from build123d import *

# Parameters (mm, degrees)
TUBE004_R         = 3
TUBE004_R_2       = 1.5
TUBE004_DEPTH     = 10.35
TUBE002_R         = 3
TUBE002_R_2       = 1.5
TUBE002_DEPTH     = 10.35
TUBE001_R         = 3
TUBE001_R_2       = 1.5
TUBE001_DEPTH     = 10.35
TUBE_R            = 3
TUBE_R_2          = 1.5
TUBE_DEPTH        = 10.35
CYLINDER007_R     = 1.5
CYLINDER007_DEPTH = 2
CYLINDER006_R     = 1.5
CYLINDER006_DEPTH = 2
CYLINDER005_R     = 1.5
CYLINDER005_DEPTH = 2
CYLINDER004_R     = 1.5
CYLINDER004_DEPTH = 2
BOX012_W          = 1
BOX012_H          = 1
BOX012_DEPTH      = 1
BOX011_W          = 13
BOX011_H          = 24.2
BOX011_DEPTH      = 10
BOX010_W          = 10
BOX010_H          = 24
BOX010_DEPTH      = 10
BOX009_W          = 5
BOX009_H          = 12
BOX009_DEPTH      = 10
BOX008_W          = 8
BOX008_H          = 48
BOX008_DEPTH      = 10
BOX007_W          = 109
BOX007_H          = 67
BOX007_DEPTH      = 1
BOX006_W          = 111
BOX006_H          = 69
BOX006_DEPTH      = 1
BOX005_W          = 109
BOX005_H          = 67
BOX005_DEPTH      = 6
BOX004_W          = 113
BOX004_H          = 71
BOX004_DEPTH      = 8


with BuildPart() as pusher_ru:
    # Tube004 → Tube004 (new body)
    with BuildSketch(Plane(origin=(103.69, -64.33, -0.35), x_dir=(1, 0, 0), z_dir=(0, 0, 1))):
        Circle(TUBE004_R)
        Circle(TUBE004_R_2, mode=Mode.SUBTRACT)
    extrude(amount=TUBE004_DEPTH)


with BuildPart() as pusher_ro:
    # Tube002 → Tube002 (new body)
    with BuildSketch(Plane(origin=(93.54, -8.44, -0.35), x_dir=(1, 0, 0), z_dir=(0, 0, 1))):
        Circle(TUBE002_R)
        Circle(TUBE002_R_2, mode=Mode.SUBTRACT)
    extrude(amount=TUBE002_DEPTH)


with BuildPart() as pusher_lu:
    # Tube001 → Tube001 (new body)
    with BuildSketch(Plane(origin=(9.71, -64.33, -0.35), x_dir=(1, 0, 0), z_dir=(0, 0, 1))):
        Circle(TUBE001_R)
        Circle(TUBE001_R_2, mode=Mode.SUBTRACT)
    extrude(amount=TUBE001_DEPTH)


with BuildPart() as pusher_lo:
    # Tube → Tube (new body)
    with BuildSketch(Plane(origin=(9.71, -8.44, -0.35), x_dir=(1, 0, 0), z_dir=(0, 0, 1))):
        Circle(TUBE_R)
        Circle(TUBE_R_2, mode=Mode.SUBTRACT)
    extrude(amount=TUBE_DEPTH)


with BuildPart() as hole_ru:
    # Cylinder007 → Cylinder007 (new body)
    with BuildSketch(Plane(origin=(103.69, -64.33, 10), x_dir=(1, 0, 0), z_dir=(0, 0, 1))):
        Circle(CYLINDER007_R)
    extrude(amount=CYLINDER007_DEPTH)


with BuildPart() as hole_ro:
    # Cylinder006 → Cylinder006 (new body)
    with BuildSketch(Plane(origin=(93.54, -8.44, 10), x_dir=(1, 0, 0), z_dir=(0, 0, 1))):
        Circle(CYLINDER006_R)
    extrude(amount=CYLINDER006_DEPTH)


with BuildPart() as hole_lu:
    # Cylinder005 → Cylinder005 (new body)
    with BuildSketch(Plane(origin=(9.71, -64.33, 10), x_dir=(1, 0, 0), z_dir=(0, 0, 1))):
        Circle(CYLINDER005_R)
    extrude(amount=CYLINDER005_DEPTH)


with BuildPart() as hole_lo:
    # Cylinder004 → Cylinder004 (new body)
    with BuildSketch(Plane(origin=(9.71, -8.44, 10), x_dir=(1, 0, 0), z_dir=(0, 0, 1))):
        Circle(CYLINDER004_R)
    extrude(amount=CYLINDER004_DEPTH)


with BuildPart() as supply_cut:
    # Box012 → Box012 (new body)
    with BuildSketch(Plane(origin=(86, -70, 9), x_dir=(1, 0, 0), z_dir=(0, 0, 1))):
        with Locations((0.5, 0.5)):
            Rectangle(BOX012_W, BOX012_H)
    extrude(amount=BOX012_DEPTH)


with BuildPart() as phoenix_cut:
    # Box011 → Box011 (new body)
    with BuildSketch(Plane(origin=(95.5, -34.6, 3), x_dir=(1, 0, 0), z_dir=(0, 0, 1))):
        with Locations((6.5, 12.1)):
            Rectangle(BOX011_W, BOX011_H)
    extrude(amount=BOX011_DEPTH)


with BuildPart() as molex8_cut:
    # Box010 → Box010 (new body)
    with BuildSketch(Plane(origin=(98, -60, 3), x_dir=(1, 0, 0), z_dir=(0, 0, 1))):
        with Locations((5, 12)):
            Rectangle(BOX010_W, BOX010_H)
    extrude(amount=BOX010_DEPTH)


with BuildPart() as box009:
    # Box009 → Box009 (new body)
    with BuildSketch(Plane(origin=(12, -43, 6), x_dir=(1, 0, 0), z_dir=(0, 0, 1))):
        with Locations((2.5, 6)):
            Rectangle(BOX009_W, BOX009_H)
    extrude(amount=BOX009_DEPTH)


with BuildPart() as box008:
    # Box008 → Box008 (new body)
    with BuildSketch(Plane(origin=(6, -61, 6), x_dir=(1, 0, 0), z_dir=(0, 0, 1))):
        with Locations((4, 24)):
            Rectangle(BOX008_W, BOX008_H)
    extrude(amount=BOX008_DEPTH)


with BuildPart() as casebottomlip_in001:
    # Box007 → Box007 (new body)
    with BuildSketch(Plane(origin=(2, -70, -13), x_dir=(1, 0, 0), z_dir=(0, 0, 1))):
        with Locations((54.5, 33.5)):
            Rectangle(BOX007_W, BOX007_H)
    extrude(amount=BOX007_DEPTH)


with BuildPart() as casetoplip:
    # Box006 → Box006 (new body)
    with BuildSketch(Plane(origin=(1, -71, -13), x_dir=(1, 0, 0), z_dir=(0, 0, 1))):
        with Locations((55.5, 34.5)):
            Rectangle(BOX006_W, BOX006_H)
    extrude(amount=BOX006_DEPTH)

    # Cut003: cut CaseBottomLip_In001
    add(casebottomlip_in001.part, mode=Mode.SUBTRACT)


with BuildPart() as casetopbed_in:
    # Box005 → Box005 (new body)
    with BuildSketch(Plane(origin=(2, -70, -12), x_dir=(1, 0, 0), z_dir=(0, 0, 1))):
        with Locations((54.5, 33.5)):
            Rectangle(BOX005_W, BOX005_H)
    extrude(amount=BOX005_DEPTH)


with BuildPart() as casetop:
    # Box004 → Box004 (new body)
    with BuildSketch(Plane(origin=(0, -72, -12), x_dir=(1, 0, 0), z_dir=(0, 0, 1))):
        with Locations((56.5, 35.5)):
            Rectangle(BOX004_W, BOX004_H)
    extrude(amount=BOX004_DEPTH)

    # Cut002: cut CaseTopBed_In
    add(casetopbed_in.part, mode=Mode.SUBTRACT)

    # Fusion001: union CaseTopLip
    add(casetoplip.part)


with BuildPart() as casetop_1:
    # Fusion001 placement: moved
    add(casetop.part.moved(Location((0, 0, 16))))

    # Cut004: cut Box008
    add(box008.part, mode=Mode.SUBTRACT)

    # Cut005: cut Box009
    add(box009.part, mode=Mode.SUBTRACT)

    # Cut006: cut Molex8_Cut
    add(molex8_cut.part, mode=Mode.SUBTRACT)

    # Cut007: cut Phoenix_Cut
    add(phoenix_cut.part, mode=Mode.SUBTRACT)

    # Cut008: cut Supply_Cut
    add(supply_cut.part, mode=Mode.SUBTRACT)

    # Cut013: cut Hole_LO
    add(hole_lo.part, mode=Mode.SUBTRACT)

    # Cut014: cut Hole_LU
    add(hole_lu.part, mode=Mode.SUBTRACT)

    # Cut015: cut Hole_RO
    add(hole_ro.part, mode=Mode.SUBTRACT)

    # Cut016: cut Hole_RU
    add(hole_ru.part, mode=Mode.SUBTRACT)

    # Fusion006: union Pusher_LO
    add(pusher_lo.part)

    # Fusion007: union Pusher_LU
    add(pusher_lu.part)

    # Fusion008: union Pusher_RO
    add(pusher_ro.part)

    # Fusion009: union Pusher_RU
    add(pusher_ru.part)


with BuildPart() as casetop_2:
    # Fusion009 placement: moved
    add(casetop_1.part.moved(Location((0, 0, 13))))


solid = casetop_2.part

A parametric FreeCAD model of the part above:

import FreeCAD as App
import Part
import Sketcher

V = App.Vector
Q = App.Units.Quantity

doc = App.newDocument("Part")
body = doc.addObject("PartDesign::Body", "Body")

# Sketch on XY plane
sketch1 = body.newObject("Sketcher::SketchObject", "Sketch")
sketch1.AttachmentSupport = (doc.getObject("XY_Plane"), [""])
sketch1.MapMode = "FlatFace"
sketch1.AttachmentOffset = App.Placement(V(0, 0, -0.35), App.Rotation())
sketch1.addGeometry([
    Part.Circle(V(103.7, -64.3, 0), V(0, 0, 1), 3),
    Part.Circle(V(103.7, -64.3, 0), V(0, 0, 1), 1.5),
], False)
sketch1.addConstraint([
    Sketcher.Constraint("Coincident", 1, 3, 0, 3),
    Sketcher.Constraint("Diameter", 0, Q("6 mm")),
    Sketcher.Constraint("Diameter", 1, Q("3 mm")),
    Sketcher.Constraint("DistanceX", -1, 1, 0, 3, Q("103.69 mm")),
    Sketcher.Constraint("DistanceY", 0, 3, -1, 1, Q("64.33 mm")),
])
pad1 = body.newObject("PartDesign::Pad", "Pad")
pad1.Profile = sketch1
pad1.Length = 10.35
body2 = doc.addObject("PartDesign::Body", "Body001")

# Sketch on XY plane
sketch2 = body2.newObject("Sketcher::SketchObject", "Sketch001")
sketch2.AttachmentSupport = (doc.getObject("XY_Plane001"), [""])
sketch2.MapMode = "FlatFace"
sketch2.AttachmentOffset = App.Placement(V(0, 0, -0.35), App.Rotation())
sketch2.addGeometry([
    Part.Circle(V(93.5, -8.4, 0), V(0, 0, 1), 3),
    Part.Circle(V(93.5, -8.4, 0), V(0, 0, 1), 1.5),
], False)
sketch2.addConstraint([
    Sketcher.Constraint("Coincident", 1, 3, 0, 3),
    Sketcher.Constraint("Diameter", 0, Q("6 mm")),
    Sketcher.Constraint("Diameter", 1, Q("3 mm")),
    Sketcher.Constraint("DistanceX", -1, 1, 0, 3, Q("93.54 mm")),
    Sketcher.Constraint("DistanceY", 0, 3, -1, 1, Q("8.44 mm")),
])
pad2 = body2.newObject("PartDesign::Pad", "Pad001")
pad2.Profile = sketch2
pad2.Length = 10.35
body3 = doc.addObject("PartDesign::Body", "Body002")

# Sketch on XY plane
sketch3 = body3.newObject("Sketcher::SketchObject", "Sketch002")
sketch3.AttachmentSupport = (doc.getObject("XY_Plane002"), [""])
sketch3.MapMode = "FlatFace"
sketch3.AttachmentOffset = App.Placement(V(0, 0, -0.35), App.Rotation())
sketch3.addGeometry([
    Part.Circle(V(9.7, -64.3, 0), V(0, 0, 1), 3),
    Part.Circle(V(9.7, -64.3, 0), V(0, 0, 1), 1.5),
], False)
sketch3.addConstraint([
    Sketcher.Constraint("Coincident", 1, 3, 0, 3),
    Sketcher.Constraint("Diameter", 0, Q("6 mm")),
    Sketcher.Constraint("Diameter", 1, Q("3 mm")),
    Sketcher.Constraint("DistanceX", -1, 1, 0, 3, Q("9.71 mm")),
    Sketcher.Constraint("DistanceY", 0, 3, -1, 1, Q("64.33 mm")),
])
pad3 = body3.newObject("PartDesign::Pad", "Pad002")
pad3.Profile = sketch3
pad3.Length = 10.35
body4 = doc.addObject("PartDesign::Body", "Body003")

# Sketch on XY plane
sketch4 = body4.newObject("Sketcher::SketchObject", "Sketch003")
sketch4.AttachmentSupport = (doc.getObject("XY_Plane003"), [""])
sketch4.MapMode = "FlatFace"
sketch4.AttachmentOffset = App.Placement(V(0, 0, -0.35), App.Rotation())
sketch4.addGeometry([
    Part.Circle(V(9.7, -8.4, 0), V(0, 0, 1), 3),
    Part.Circle(V(9.7, -8.4, 0), V(0, 0, 1), 1.5),
], False)
sketch4.addConstraint([
    Sketcher.Constraint("Coincident", 1, 3, 0, 3),
    Sketcher.Constraint("Diameter", 0, Q("6 mm")),
    Sketcher.Constraint("Diameter", 1, Q("3 mm")),
    Sketcher.Constraint("DistanceX", -1, 1, 0, 3, Q("9.71 mm")),
    Sketcher.Constraint("DistanceY", 0, 3, -1, 1, Q("8.44 mm")),
])
pad4 = body4.newObject("PartDesign::Pad", "Pad003")
pad4.Profile = sketch4
pad4.Length = 10.35
body5 = doc.addObject("PartDesign::Body", "Body004")

# Sketch on XY plane
sketch5 = body5.newObject("Sketcher::SketchObject", "Sketch004")
sketch5.AttachmentSupport = (doc.getObject("XY_Plane004"), [""])
sketch5.MapMode = "FlatFace"
sketch5.AttachmentOffset = App.Placement(V(0, 0, 10), App.Rotation())
sketch5.addGeometry(Part.Circle(V(103.7, -64.3, 0), V(0, 0, 1), 1.5), False)
sketch5.addConstraint([
    Sketcher.Constraint("Diameter", 0, Q("3 mm")),
    Sketcher.Constraint("DistanceX", -1, 1, 0, 3, Q("103.69 mm")),
    Sketcher.Constraint("DistanceY", 0, 3, -1, 1, Q("64.33 mm")),
])
pad5 = body5.newObject("PartDesign::Pad", "Pad004")
pad5.Profile = sketch5
pad5.Length = 2
body6 = doc.addObject("PartDesign::Body", "Body005")

# Sketch on XY plane
sketch6 = body6.newObject("Sketcher::SketchObject", "Sketch005")
sketch6.AttachmentSupport = (doc.getObject("XY_Plane005"), [""])
sketch6.MapMode = "FlatFace"
sketch6.AttachmentOffset = App.Placement(V(0, 0, 10), App.Rotation())
sketch6.addGeometry(Part.Circle(V(93.5, -8.4, 0), V(0, 0, 1), 1.5), False)
sketch6.addConstraint([
    Sketcher.Constraint("Diameter", 0, Q("3 mm")),
    Sketcher.Constraint("DistanceX", -1, 1, 0, 3, Q("93.54 mm")),
    Sketcher.Constraint("DistanceY", 0, 3, -1, 1, Q("8.44 mm")),
])
pad6 = body6.newObject("PartDesign::Pad", "Pad005")
pad6.Profile = sketch6
pad6.Length = 2
body7 = doc.addObject("PartDesign::Body", "Body006")

# Sketch on XY plane
sketch7 = body7.newObject("Sketcher::SketchObject", "Sketch006")
sketch7.AttachmentSupport = (doc.getObject("XY_Plane006"), [""])
sketch7.MapMode = "FlatFace"
sketch7.AttachmentOffset = App.Placement(V(0, 0, 10), App.Rotation())
sketch7.addGeometry(Part.Circle(V(9.7, -64.3, 0), V(0, 0, 1), 1.5), False)
sketch7.addConstraint([
    Sketcher.Constraint("Diameter", 0, Q("3 mm")),
    Sketcher.Constraint("DistanceX", -1, 1, 0, 3, Q("9.71 mm")),
    Sketcher.Constraint("DistanceY", 0, 3, -1, 1, Q("64.33 mm")),
])
pad7 = body7.newObject("PartDesign::Pad", "Pad006")
pad7.Profile = sketch7
pad7.Length = 2
body8 = doc.addObject("PartDesign::Body", "Body007")

# Sketch on XY plane
sketch8 = body8.newObject("Sketcher::SketchObject", "Sketch007")
sketch8.AttachmentSupport = (doc.getObject("XY_Plane007"), [""])
sketch8.MapMode = "FlatFace"
sketch8.AttachmentOffset = App.Placement(V(0, 0, 10), App.Rotation())
sketch8.addGeometry(Part.Circle(V(9.7, -8.4, 0), V(0, 0, 1), 1.5), False)
sketch8.addConstraint([
    Sketcher.Constraint("Diameter", 0, Q("3 mm")),
    Sketcher.Constraint("DistanceX", -1, 1, 0, 3, Q("9.71 mm")),
    Sketcher.Constraint("DistanceY", 0, 3, -1, 1, Q("8.44 mm")),
])
pad8 = body8.newObject("PartDesign::Pad", "Pad007")
pad8.Profile = sketch8
pad8.Length = 2
body9 = doc.addObject("PartDesign::Body", "Body008")

# Sketch on XY plane
sketch9 = body9.newObject("Sketcher::SketchObject", "Sketch008")
sketch9.AttachmentSupport = (doc.getObject("XY_Plane008"), [""])
sketch9.MapMode = "FlatFace"
sketch9.AttachmentOffset = App.Placement(V(0, 0, 9), App.Rotation())
sketch9.addGeometry([
    Part.LineSegment(V(86, -69, 0), V(86, -70, 0)),
    Part.LineSegment(V(86, -70, 0), V(87, -70, 0)),
    Part.LineSegment(V(87, -70, 0), V(87, -69, 0)),
    Part.LineSegment(V(87, -69, 0), V(86, -69, 0)),
], False)
sketch9.addConstraint([
    Sketcher.Constraint("Coincident", 0, 2, 1, 1),
    Sketcher.Constraint("Coincident", 1, 2, 2, 1),
    Sketcher.Constraint("Coincident", 2, 2, 3, 1),
    Sketcher.Constraint("Coincident", 3, 2, 0, 1),
    Sketcher.Constraint("Vertical", 0),
    Sketcher.Constraint("Horizontal", 1),
    Sketcher.Constraint("Vertical", 2),
    Sketcher.Constraint("Horizontal", 3),
    Sketcher.Constraint("Equal", 3, 0),
    Sketcher.Constraint("DistanceX", 1, 1, 1, 2, Q("1 mm")),
    Sketcher.Constraint("DistanceX", -1, 1, 0, 2, Q("86 mm")),
    Sketcher.Constraint("DistanceY", 0, 2, -1, 1, Q("70 mm")),
])
pad9 = body9.newObject("PartDesign::Pad", "Pad008")
pad9.Profile = sketch9
pad9.Length = 1
body10 = doc.addObject("PartDesign::Body", "Body009")

# Sketch on XY plane
sketch10 = body10.newObject("Sketcher::SketchObject", "Sketch009")
sketch10.AttachmentSupport = (doc.getObject("XY_Plane009"), [""])
sketch10.MapMode = "FlatFace"
sketch10.AttachmentOffset = App.Placement(V(0, 0, 3), App.Rotation())
sketch10.addGeometry([
    Part.LineSegment(V(96, -10, 0), V(96, -35, 0)),
    Part.LineSegment(V(96, -35, 0), V(108, -35, 0)),
    Part.LineSegment(V(108, -35, 0), V(108, -10, 0)),
    Part.LineSegment(V(108, -10, 0), V(96, -10, 0)),
], False)
sketch10.addConstraint([
    Sketcher.Constraint("Coincident", 0, 2, 1, 1),
    Sketcher.Constraint("Coincident", 1, 2, 2, 1),
    Sketcher.Constraint("Coincident", 2, 2, 3, 1),
    Sketcher.Constraint("Coincident", 3, 2, 0, 1),
    Sketcher.Constraint("Vertical", 0),
    Sketcher.Constraint("Horizontal", 1),
    Sketcher.Constraint("Vertical", 2),
    Sketcher.Constraint("Horizontal", 3),
    Sketcher.Constraint("DistanceX", 1, 1, 1, 2, Q("13 mm")),
    Sketcher.Constraint("DistanceY", 0, 2, 0, 1, Q("24.2 mm")),
    Sketcher.Constraint("DistanceX", -1, 1, 0, 2, Q("95.5 mm")),
    Sketcher.Constraint("DistanceY", 0, 2, -1, 1, Q("34.6 mm")),
])
pad10 = body10.newObject("PartDesign::Pad", "Pad009")
pad10.Profile = sketch10
pad10.Length = 10
body11 = doc.addObject("PartDesign::Body", "Body010")

# Sketch on XY plane
sketch11 = body11.newObject("Sketcher::SketchObject", "Sketch010")
sketch11.AttachmentSupport = (doc.getObject("XY_Plane010"), [""])
sketch11.MapMode = "FlatFace"
sketch11.AttachmentOffset = App.Placement(V(0, 0, 3), App.Rotation())
sketch11.addGeometry([
    Part.LineSegment(V(98, -36, 0), V(98, -60, 0)),
    Part.LineSegment(V(98, -60, 0), V(108, -60, 0)),
    Part.LineSegment(V(108, -60, 0), V(108, -36, 0)),
    Part.LineSegment(V(108, -36, 0), V(98, -36, 0)),
], False)
sketch11.addConstraint([
    Sketcher.Constraint("Coincident", 0, 2, 1, 1),
    Sketcher.Constraint("Coincident", 1, 2, 2, 1),
    Sketcher.Constraint("Coincident", 2, 2, 3, 1),
    Sketcher.Constraint("Coincident", 3, 2, 0, 1),
    Sketcher.Constraint("Vertical", 0),
    Sketcher.Constraint("Horizontal", 1),
    Sketcher.Constraint("Vertical", 2),
    Sketcher.Constraint("Horizontal", 3),
    Sketcher.Constraint("DistanceX", 1, 1, 1, 2, Q("10 mm")),
    Sketcher.Constraint("DistanceY", 0, 2, 0, 1, Q("24 mm")),
    Sketcher.Constraint("DistanceX", -1, 1, 0, 2, Q("98 mm")),
    Sketcher.Constraint("DistanceY", 0, 2, -1, 1, Q("60 mm")),
])
pad11 = body11.newObject("PartDesign::Pad", "Pad010")
pad11.Profile = sketch11
pad11.Length = 10
body12 = doc.addObject("PartDesign::Body", "Body011")

# Sketch on XY plane
sketch12 = body12.newObject("Sketcher::SketchObject", "Sketch011")
sketch12.AttachmentSupport = (doc.getObject("XY_Plane011"), [""])
sketch12.MapMode = "FlatFace"
sketch12.AttachmentOffset = App.Placement(V(0, 0, 6), App.Rotation())
sketch12.addGeometry([
    Part.LineSegment(V(12, -31, 0), V(12, -43, 0)),
    Part.LineSegment(V(12, -43, 0), V(17, -43, 0)),
    Part.LineSegment(V(17, -43, 0), V(17, -31, 0)),
    Part.LineSegment(V(17, -31, 0), V(12, -31, 0)),
], False)
sketch12.addConstraint([
    Sketcher.Constraint("Coincident", 0, 2, 1, 1),
    Sketcher.Constraint("Coincident", 1, 2, 2, 1),
    Sketcher.Constraint("Coincident", 2, 2, 3, 1),
    Sketcher.Constraint("Coincident", 3, 2, 0, 1),
    Sketcher.Constraint("Vertical", 0),
    Sketcher.Constraint("Horizontal", 1),
    Sketcher.Constraint("Vertical", 2),
    Sketcher.Constraint("Horizontal", 3),
    Sketcher.Constraint("DistanceX", 1, 1, 1, 2, Q("5 mm")),
    Sketcher.Constraint("DistanceY", 0, 2, 0, 1, Q("12 mm")),
    Sketcher.Constraint("DistanceX", -1, 1, 0, 2, Q("12 mm")),
    Sketcher.Constraint("DistanceY", 0, 2, -1, 1, Q("43 mm")),
])
pad12 = body12.newObject("PartDesign::Pad", "Pad011")
pad12.Profile = sketch12
pad12.Length = 10
body13 = doc.addObject("PartDesign::Body", "Body012")

# Sketch on XY plane
sketch13 = body13.newObject("Sketcher::SketchObject", "Sketch012")
sketch13.AttachmentSupport = (doc.getObject("XY_Plane012"), [""])
sketch13.MapMode = "FlatFace"
sketch13.AttachmentOffset = App.Placement(V(0, 0, 6), App.Rotation())
sketch13.addGeometry([
    Part.LineSegment(V(6, -13, 0), V(6, -61, 0)),
    Part.LineSegment(V(6, -61, 0), V(14, -61, 0)),
    Part.LineSegment(V(14, -61, 0), V(14, -13, 0)),
    Part.LineSegment(V(14, -13, 0), V(6, -13, 0)),
], False)
sketch13.addConstraint([
    Sketcher.Constraint("Coincident", 0, 2, 1, 1),
    Sketcher.Constraint("Coincident", 1, 2, 2, 1),
    Sketcher.Constraint("Coincident", 2, 2, 3, 1),
    Sketcher.Constraint("Coincident", 3, 2, 0, 1),
    Sketcher.Constraint("Vertical", 0),
    Sketcher.Constraint("Horizontal", 1),
    Sketcher.Constraint("Vertical", 2),
    Sketcher.Constraint("Horizontal", 3),
    Sketcher.Constraint("DistanceX", 1, 1, 1, 2, Q("8 mm")),
    Sketcher.Constraint("DistanceY", 0, 2, 0, 1, Q("48 mm")),
    Sketcher.Constraint("DistanceX", -1, 1, 0, 2, Q("6 mm")),
    Sketcher.Constraint("DistanceY", 0, 2, -1, 1, Q("61 mm")),
])
pad13 = body13.newObject("PartDesign::Pad", "Pad012")
pad13.Profile = sketch13
pad13.Length = 10
body14 = doc.addObject("PartDesign::Body", "Body013")

# Sketch on XY plane
sketch14 = body14.newObject("Sketcher::SketchObject", "Sketch013")
sketch14.AttachmentSupport = (doc.getObject("XY_Plane013"), [""])
sketch14.MapMode = "FlatFace"
sketch14.AttachmentOffset = App.Placement(V(0, 0, -13), App.Rotation())
sketch14.addGeometry([
    Part.LineSegment(V(2, -3, 0), V(2, -70, 0)),
    Part.LineSegment(V(2, -70, 0), V(111, -70, 0)),
    Part.LineSegment(V(111, -70, 0), V(111, -3, 0)),
    Part.LineSegment(V(111, -3, 0), V(2, -3, 0)),
], False)
sketch14.addConstraint([
    Sketcher.Constraint("Coincident", 0, 2, 1, 1),
    Sketcher.Constraint("Coincident", 1, 2, 2, 1),
    Sketcher.Constraint("Coincident", 2, 2, 3, 1),
    Sketcher.Constraint("Coincident", 3, 2, 0, 1),
    Sketcher.Constraint("Vertical", 0),
    Sketcher.Constraint("Horizontal", 1),
    Sketcher.Constraint("Vertical", 2),
    Sketcher.Constraint("Horizontal", 3),
    Sketcher.Constraint("DistanceX", 1, 1, 1, 2, Q("109 mm")),
    Sketcher.Constraint("DistanceY", 0, 2, 0, 1, Q("67 mm")),
    Sketcher.Constraint("DistanceX", -1, 1, 0, 2, Q("2 mm")),
    Sketcher.Constraint("DistanceY", 0, 2, -1, 1, Q("70 mm")),
])
pad14 = body14.newObject("PartDesign::Pad", "Pad013")
pad14.Profile = sketch14
pad14.Length = 1
body15 = doc.addObject("PartDesign::Body", "Body014")

# Sketch on XY plane
sketch15 = body15.newObject("Sketcher::SketchObject", "Sketch014")
sketch15.AttachmentSupport = (doc.getObject("XY_Plane014"), [""])
sketch15.MapMode = "FlatFace"
sketch15.AttachmentOffset = App.Placement(V(0, 0, -13), App.Rotation())
sketch15.addGeometry([
    Part.LineSegment(V(1, -2, 0), V(1, -71, 0)),
    Part.LineSegment(V(1, -71, 0), V(112, -71, 0)),
    Part.LineSegment(V(112, -71, 0), V(112, -2, 0)),
    Part.LineSegment(V(112, -2, 0), V(1, -2, 0)),
], False)
sketch15.addConstraint([
    Sketcher.Constraint("Coincident", 0, 2, 1, 1),
    Sketcher.Constraint("Coincident", 1, 2, 2, 1),
    Sketcher.Constraint("Coincident", 2, 2, 3, 1),
    Sketcher.Constraint("Coincident", 3, 2, 0, 1),
    Sketcher.Constraint("Vertical", 0),
    Sketcher.Constraint("Horizontal", 1),
    Sketcher.Constraint("Vertical", 2),
    Sketcher.Constraint("Horizontal", 3),
    Sketcher.Constraint("DistanceX", 1, 1, 1, 2, Q("111 mm")),
    Sketcher.Constraint("DistanceY", 0, 2, 0, 1, Q("69 mm")),
    Sketcher.Constraint("DistanceX", -1, 1, 0, 2, Q("1 mm")),
    Sketcher.Constraint("DistanceY", 0, 2, -1, 1, Q("71 mm")),
])
pad15 = body15.newObject("PartDesign::Pad", "Pad014")
pad15.Profile = sketch15
pad15.Length = 1
doc.recompute()

boolean = body15.newObject("PartDesign::Boolean", "Boolean")
boolean.Type = "Cut"
boolean.addObjects([body14])
body16 = doc.addObject("PartDesign::Body", "Body015")

# Sketch on XY plane
sketch16 = body16.newObject("Sketcher::SketchObject", "Sketch015")
sketch16.AttachmentSupport = (doc.getObject("XY_Plane015"), [""])
sketch16.MapMode = "FlatFace"
sketch16.AttachmentOffset = App.Placement(V(0, 0, -12), App.Rotation())
sketch16.addGeometry([
    Part.LineSegment(V(2, -3, 0), V(2, -70, 0)),
    Part.LineSegment(V(2, -70, 0), V(111, -70, 0)),
    Part.LineSegment(V(111, -70, 0), V(111, -3, 0)),
    Part.LineSegment(V(111, -3, 0), V(2, -3, 0)),
], False)
sketch16.addConstraint([
    Sketcher.Constraint("Coincident", 0, 2, 1, 1),
    Sketcher.Constraint("Coincident", 1, 2, 2, 1),
    Sketcher.Constraint("Coincident", 2, 2, 3, 1),
    Sketcher.Constraint("Coincident", 3, 2, 0, 1),
    Sketcher.Constraint("Vertical", 0),
    Sketcher.Constraint("Horizontal", 1),
    Sketcher.Constraint("Vertical", 2),
    Sketcher.Constraint("Horizontal", 3),
    Sketcher.Constraint("DistanceX", 1, 1, 1, 2, Q("109 mm")),
    Sketcher.Constraint("DistanceY", 0, 2, 0, 1, Q("67 mm")),
    Sketcher.Constraint("DistanceX", -1, 1, 0, 2, Q("2 mm")),
    Sketcher.Constraint("DistanceY", 0, 2, -1, 1, Q("70 mm")),
])
pad16 = body16.newObject("PartDesign::Pad", "Pad015")
pad16.Profile = sketch16
pad16.Length = 6
body17 = doc.addObject("PartDesign::Body", "Body016")

# Sketch on XY plane
sketch17 = body17.newObject("Sketcher::SketchObject", "Sketch016")
sketch17.AttachmentSupport = (doc.getObject("XY_Plane016"), [""])
sketch17.MapMode = "FlatFace"
sketch17.AttachmentOffset = App.Placement(V(0, 0, -12), App.Rotation())
sketch17.addGeometry([
    Part.LineSegment(V(0, -1, 0), V(0, -72, 0)),
    Part.LineSegment(V(0, -72, 0), V(113, -72, 0)),
    Part.LineSegment(V(113, -72, 0), V(113, -1, 0)),
    Part.LineSegment(V(113, -1, 0), V(0, -1, 0)),
], False)
sketch17.addConstraint([
    Sketcher.Constraint("Coincident", 0, 2, 1, 1),
    Sketcher.Constraint("Coincident", 1, 2, 2, 1),
    Sketcher.Constraint("Coincident", 2, 2, 3, 1),
    Sketcher.Constraint("Coincident", 3, 2, 0, 1),
    Sketcher.Constraint("Vertical", 0),
    Sketcher.Constraint("Horizontal", 1),
    Sketcher.Constraint("Vertical", 2),
    Sketcher.Constraint("Horizontal", 3),
    Sketcher.Constraint("PointOnObject", 0, 2, -2),
    Sketcher.Constraint("DistanceX", 1, 1, 1, 2, Q("113 mm")),
    Sketcher.Constraint("DistanceY", 0, 2, 0, 1, Q("71 mm")),
    Sketcher.Constraint("DistanceY", 0, 2, -1, 1, Q("72 mm")),
])
pad17 = body17.newObject("PartDesign::Pad", "Pad016")
pad17.Profile = sketch17
pad17.Length = 8
doc.recompute()

boolean2 = body17.newObject("PartDesign::Boolean", "Boolean001")
boolean2.Type = "Cut"
boolean2.addObjects([body16])
doc.recompute()

boolean3 = body17.newObject("PartDesign::Boolean", "Boolean002")
boolean3.Type = "Fuse"
boolean3.addObjects([body15])
body18 = doc.addObject("PartDesign::Body", "Body017")
doc.recompute()

body17.Placement = App.Placement(V(0, 0, 16), App.Rotation(V(0, 0, 1), 0))
boolean4 = body18.newObject("PartDesign::Boolean", "Boolean003")
boolean4.Type = "Fuse"
boolean4.addObjects([body17])
doc.recompute()

boolean5 = body18.newObject("PartDesign::Boolean", "Boolean004")
boolean5.Type = "Cut"
boolean5.addObjects([body13])
doc.recompute()

boolean6 = body18.newObject("PartDesign::Boolean", "Boolean005")
boolean6.Type = "Cut"
boolean6.addObjects([body12])
doc.recompute()

boolean7 = body18.newObject("PartDesign::Boolean", "Boolean006")
boolean7.Type = "Cut"
boolean7.addObjects([body11])
doc.recompute()

boolean8 = body18.newObject("PartDesign::Boolean", "Boolean007")
boolean8.Type = "Cut"
boolean8.addObjects([body10])
doc.recompute()

boolean9 = body18.newObject("PartDesign::Boolean", "Boolean008")
boolean9.Type = "Cut"
boolean9.addObjects([body9])
doc.recompute()

boolean10 = body18.newObject("PartDesign::Boolean", "Boolean009")
boolean10.Type = "Cut"
boolean10.addObjects([body8])
doc.recompute()

boolean11 = body18.newObject("PartDesign::Boolean", "Boolean010")
boolean11.Type = "Cut"
boolean11.addObjects([body7])
doc.recompute()

boolean12 = body18.newObject("PartDesign::Boolean", "Boolean011")
boolean12.Type = "Cut"
boolean12.addObjects([body6])
doc.recompute()

boolean13 = body18.newObject("PartDesign::Boolean", "Boolean012")
boolean13.Type = "Cut"
boolean13.addObjects([body5])
doc.recompute()

boolean14 = body18.newObject("PartDesign::Boolean", "Boolean013")
boolean14.Type = "Fuse"
boolean14.addObjects([body4])
doc.recompute()

boolean15 = body18.newObject("PartDesign::Boolean", "Boolean014")
boolean15.Type = "Fuse"
boolean15.addObjects([body3])
doc.recompute()

boolean16 = body18.newObject("PartDesign::Boolean", "Boolean015")
boolean16.Type = "Fuse"
boolean16.addObjects([body2])
doc.recompute()

boolean17 = body18.newObject("PartDesign::Boolean", "Boolean016")
boolean17.Type = "Fuse"
boolean17.addObjects([body])
body19 = doc.addObject("PartDesign::Body", "Body018")
doc.recompute()

body18.Placement = App.Placement(V(0, 0, 13), App.Rotation(V(0, 0, 1), 0))
boolean18 = body19.newObject("PartDesign::Boolean", "Boolean017")
boolean18.Type = "Fuse"
boolean18.addObjects([body18])

doc.recompute()
